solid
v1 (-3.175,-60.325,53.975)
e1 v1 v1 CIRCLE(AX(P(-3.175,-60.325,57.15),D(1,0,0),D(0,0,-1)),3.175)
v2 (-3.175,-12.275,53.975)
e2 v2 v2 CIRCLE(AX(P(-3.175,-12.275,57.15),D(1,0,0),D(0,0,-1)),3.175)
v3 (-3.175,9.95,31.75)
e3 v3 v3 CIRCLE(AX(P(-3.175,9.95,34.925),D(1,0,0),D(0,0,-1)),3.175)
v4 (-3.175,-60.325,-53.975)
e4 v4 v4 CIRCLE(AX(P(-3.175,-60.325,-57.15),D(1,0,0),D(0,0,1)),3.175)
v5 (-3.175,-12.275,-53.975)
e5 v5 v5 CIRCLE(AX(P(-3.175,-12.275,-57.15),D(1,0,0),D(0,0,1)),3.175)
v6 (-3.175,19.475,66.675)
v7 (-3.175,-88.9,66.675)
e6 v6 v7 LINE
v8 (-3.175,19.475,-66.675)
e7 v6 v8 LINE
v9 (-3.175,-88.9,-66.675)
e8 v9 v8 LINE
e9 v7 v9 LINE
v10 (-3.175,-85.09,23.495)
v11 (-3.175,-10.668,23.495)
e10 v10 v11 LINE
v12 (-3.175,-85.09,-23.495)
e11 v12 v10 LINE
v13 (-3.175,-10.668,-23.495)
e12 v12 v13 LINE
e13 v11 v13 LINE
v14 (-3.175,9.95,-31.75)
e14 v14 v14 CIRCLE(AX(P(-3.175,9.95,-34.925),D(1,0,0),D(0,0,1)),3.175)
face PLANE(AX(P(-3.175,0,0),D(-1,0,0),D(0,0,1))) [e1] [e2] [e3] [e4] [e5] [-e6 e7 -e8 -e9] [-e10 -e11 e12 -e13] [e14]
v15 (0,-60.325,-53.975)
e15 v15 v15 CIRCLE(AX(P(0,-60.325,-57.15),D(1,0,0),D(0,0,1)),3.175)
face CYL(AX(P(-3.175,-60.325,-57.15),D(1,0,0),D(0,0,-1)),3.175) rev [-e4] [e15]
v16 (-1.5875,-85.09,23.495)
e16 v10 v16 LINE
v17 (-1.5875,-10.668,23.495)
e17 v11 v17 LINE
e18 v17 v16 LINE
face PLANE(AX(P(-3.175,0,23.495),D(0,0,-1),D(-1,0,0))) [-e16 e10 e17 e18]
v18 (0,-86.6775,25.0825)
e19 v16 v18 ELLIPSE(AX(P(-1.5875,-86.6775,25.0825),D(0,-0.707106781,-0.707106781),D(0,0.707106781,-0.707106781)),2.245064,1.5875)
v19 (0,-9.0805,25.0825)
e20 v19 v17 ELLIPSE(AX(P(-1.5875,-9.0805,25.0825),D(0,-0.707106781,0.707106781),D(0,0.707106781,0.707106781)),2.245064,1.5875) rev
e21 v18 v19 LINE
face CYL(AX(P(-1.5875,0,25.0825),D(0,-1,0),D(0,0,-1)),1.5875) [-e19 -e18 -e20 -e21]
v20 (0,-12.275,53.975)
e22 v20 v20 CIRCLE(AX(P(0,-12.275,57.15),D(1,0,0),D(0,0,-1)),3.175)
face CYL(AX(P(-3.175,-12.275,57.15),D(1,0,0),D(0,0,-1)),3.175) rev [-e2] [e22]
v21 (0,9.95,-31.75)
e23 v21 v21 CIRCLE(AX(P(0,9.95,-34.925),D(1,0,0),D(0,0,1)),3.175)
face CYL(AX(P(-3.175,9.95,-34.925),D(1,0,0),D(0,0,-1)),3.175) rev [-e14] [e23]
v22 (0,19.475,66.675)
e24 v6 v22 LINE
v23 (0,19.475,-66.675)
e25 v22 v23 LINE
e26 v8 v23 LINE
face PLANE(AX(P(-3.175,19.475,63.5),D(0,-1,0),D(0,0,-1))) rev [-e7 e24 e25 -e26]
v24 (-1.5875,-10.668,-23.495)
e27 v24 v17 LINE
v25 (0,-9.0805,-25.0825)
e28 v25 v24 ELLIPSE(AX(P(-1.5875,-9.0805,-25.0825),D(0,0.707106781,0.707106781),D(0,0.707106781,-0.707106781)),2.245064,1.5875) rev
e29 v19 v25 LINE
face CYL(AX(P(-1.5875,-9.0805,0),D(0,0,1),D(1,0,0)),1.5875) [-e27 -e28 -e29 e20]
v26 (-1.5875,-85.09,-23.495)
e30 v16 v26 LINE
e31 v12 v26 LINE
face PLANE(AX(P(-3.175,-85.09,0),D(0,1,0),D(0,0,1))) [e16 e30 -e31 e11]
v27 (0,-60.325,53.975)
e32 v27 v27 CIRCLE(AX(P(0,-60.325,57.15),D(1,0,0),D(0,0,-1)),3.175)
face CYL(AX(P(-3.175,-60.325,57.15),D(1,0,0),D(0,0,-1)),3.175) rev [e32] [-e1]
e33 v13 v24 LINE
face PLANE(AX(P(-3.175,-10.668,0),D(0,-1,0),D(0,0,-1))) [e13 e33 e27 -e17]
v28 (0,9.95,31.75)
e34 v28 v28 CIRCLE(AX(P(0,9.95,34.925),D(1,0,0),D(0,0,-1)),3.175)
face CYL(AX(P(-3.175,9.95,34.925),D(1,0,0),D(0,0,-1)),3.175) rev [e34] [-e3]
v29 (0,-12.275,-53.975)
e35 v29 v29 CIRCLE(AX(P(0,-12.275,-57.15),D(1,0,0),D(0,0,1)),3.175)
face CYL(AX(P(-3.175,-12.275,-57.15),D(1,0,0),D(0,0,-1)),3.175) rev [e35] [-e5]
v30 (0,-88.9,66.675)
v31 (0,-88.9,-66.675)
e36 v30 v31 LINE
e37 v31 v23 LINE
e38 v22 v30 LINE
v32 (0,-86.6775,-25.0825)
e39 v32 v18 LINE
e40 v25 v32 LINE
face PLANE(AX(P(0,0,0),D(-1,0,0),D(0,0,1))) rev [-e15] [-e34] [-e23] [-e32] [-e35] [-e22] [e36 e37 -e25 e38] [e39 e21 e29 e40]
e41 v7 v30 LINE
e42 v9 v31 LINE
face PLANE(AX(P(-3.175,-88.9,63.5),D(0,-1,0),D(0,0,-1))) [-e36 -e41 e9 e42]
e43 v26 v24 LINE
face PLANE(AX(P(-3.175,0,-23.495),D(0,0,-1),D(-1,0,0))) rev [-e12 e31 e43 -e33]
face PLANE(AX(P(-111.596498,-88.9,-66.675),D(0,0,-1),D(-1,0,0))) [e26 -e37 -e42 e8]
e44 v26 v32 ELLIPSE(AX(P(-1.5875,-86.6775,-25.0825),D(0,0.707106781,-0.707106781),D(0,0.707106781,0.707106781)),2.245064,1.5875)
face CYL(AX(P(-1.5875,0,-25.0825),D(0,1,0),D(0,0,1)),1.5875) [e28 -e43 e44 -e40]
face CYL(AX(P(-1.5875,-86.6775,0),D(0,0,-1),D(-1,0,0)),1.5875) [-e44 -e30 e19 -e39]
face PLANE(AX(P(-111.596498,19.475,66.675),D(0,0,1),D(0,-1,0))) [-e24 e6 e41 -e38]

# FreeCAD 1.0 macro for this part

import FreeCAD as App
import Part
import Sketcher
Q = App.Units.Quantity


def edges_at(feature, points):
    """Names of the edges that pass closest to the given points."""
    edges = feature.Shape.Edges
    near = lambda p: min(range(len(edges)), key=lambda i: edges[i].distToShape(Part.Vertex(*p))[0])
    return sorted({f"Edge{near(p) + 1}" for p in points})


def add_polygon(sketch, points):
    """Adds a closed chain of lines whose ends are joined by coincident constraints."""
    first, n = sketch.GeometryCount, len(points)
    for a, b in zip(points, points[1:] + points[:1]):
        sketch.addGeometry(Part.LineSegment(App.Vector(*a, 0), App.Vector(*b, 0)), False)
    for i in range(n):
        sketch.addConstraint(Sketcher.Constraint("Coincident", first + i, 2, first + (i + 1) % n, 1))

doc = App.newDocument("Part")
body = doc.addObject("PartDesign::Body", "Body")

sketch1 = doc.addObject("Sketcher::SketchObject", "Sketch")
body.addObject(sketch1)
sketch1.AttachmentSupport = (doc.YZ_Plane, [""])
sketch1.MapMode = "FlatFace"
add_polygon(sketch1, [(89, 64), (-89, 64), (-89, -64), (89, -64)])
sketch1.addConstraint(Sketcher.Constraint("Horizontal", 0))
sketch1.addConstraint(Sketcher.Constraint("Vertical", 1))
sketch1.addConstraint(Sketcher.Constraint("Horizontal", 2))
sketch1.addConstraint(Sketcher.Constraint("Vertical", 3))
sketch1.addConstraint(Sketcher.Constraint("Symmetric", 0, 2, 2, 2, -1, 1))
sketch1.addConstraint(Sketcher.Constraint("DistanceX", 0, 2, 0, 1, Q("7 in")))
sketch1.addConstraint(Sketcher.Constraint("DistanceY", 1, 2, 1, 1, Q("5 in")))
pad1 = doc.addObject("PartDesign::Pad", "Pad")
body.addObject(pad1)
pad1.Profile = sketch1
pad1.Length = Q("0.125 in")
pad1.Reversed = True

sketch2 = doc.addObject("Sketcher::SketchObject", "Sketch001")
body.addObject(sketch2)
sketch2.AttachmentSupport = (doc.YZ_Plane, [""])
sketch2.MapMode = "FlatFace"
add_polygon(sketch2, [(89, 64), (19, 64), (19, -64), (89, -64)])
sketch2.addConstraint(Sketcher.Constraint("Horizontal", 0))
sketch2.addConstraint(Sketcher.Constraint("Vertical", 1))
sketch2.addConstraint(Sketcher.Constraint("Horizontal", 2))
sketch2.addConstraint(Sketcher.Constraint("Vertical", 3))
sketch2.addConstraint(Sketcher.Constraint("DistanceY", 1, 2, 1, 1, Q("5 in")))
sketch2.addConstraint(Sketcher.Constraint("DistanceY", -1, 1, 0, 2, Q("2.5 in")))
sketch2.addConstraint(Sketcher.Constraint("DistanceX", -1, 1, 2, 2, Q("3.5 in")))
sketch2.addConstraint(Sketcher.Constraint("DistanceX", 0, 2, 0, 1, Q("69.425 mm")))
pocket1 = doc.addObject("PartDesign::Pocket", "Pocket")
body.addObject(pocket1)
pocket1.Profile = sketch2
pocket1.Type = "ThroughAll"

sketch3 = doc.addObject("Sketcher::SketchObject", "Sketch002")
body.addObject(sketch3)
sketch3.AttachmentSupport = (doc.YZ_Plane, [""])
sketch3.MapMode = "FlatFace"
add_polygon(sketch3, [(19.5, 66.7), (-88.9, 66.7), (-88.9, 63.5), (19.5, 63.5)])
add_polygon(sketch3, [(19.5, -63.5), (-88.9, -63.5), (-88.9, -66.7), (19.5, -66.7)])
sketch3.addConstraint(Sketcher.Constraint("Horizontal", 0))
sketch3.addConstraint(Sketcher.Constraint("Vertical", 1))
sketch3.addConstraint(Sketcher.Constraint("Horizontal", 2))
sketch3.addConstraint(Sketcher.Constraint("Vertical", 3))
sketch3.addConstraint(Sketcher.Constraint("Horizontal", 4))
sketch3.addConstraint(Sketcher.Constraint("Vertical", 5))
sketch3.addConstraint(Sketcher.Constraint("Horizontal", 6))
sketch3.addConstraint(Sketcher.Constraint("Vertical", 7))
sketch3.addConstraint(Sketcher.Constraint("Symmetric", 1, 2, 4, 2, -1))
sketch3.addConstraint(Sketcher.Constraint("Symmetric", 3, 2, 6, 2, -1))
sketch3.addConstraint(Sketcher.Constraint("DistanceY", 4, 2, 1, 2, Q("5 in")))
sketch3.addConstraint(Sketcher.Constraint("DistanceX", 0, 2, -1, 1, Q("3.5 in")))
sketch3.addConstraint(Sketcher.Constraint("DistanceY", 1, 2, 1, 1, Q("0.125 in")))
sketch3.addConstraint(Sketcher.Constraint("DistanceX", 0, 2, 0, 1, Q("108.375 mm")))
pad2 = doc.addObject("PartDesign::Pad", "Pad001")
body.addObject(pad2)
pad2.Profile = sketch3
pad2.Length = Q("0.125 in")
pad2.Reversed = True

sketch4 = doc.addObject("Sketcher::SketchObject", "Sketch003")
body.addObject(sketch4)
sketch4.AttachmentSupport = (doc.YZ_Plane, [""])
sketch4.MapMode = "FlatFace"
add_polygon(sketch4, [(-11, 23), (-85, 23), (-85, -23), (-11, -23)])
sketch4.addConstraint(Sketcher.Constraint("Horizontal", 0))
sketch4.addConstraint(Sketcher.Constraint("Vertical", 1))
sketch4.addConstraint(Sketcher.Constraint("Horizontal", 2))
sketch4.addConstraint(Sketcher.Constraint("Vertical", 3))
sketch4.addConstraint(Sketcher.Constraint("DistanceX", 0, 2, 0, 1, Q("2.93 in")))
sketch4.addConstraint(Sketcher.Constraint("DistanceY", 1, 2, 1, 1, Q("1.85 in")))
sketch4.addConstraint(Sketcher.Constraint("DistanceX", 0, 2, -1, 1, Q("3.35 in")))
sketch4.addConstraint(Sketcher.Constraint("DistanceY", -1, 1, 0, 2, Q("0.925 in")))
pocket2 = doc.addObject("PartDesign::Pocket", "Pocket001")
body.addObject(pocket2)
pocket2.Profile = sketch4
pocket2.Type = "ThroughAll"
doc.recompute()

fillet = doc.addObject("PartDesign::Fillet", "Fillet")
body.addObject(fillet)
fillet.Base = (pocket2, edges_at(pocket2, [
    (0, -10.668, 0),
    (0, -85.09, 0),
    (0, -47.879, 23.495),
    (0, -47.879, -23.495),
]))
fillet.Radius = Q("0.0625 in")

sketch5 = doc.addObject("Sketcher::SketchObject", "Sketch004")
body.addObject(sketch5)
sketch5.AttachmentSupport = (doc.YZ_Plane, [""])
sketch5.MapMode = "FlatFace"
sketch5.addGeometry(Part.Circle(App.Vector(-60.3, 57.1, 0), App.Vector(0, 0, 1), 3.2), False)
sketch5.addGeometry(Part.Circle(App.Vector(-12.3, 57.1, 0), App.Vector(0, 0, 1), 3.2), False)
sketch5.addGeometry(Part.Circle(App.Vector(9.9, 34.9, 0), App.Vector(0, 0, 1), 3.2), False)
sketch5.addGeometry(Part.Circle(App.Vector(9.9, -34.9, 0), App.Vector(0, 0, 1), 3.2), False)
sketch5.addGeometry(Part.Circle(App.Vector(-12.3, -57.1, 0), App.Vector(0, 0, 1), 3.2), False)
sketch5.addGeometry(Part.Circle(App.Vector(-60.3, -57.1, 0), App.Vector(0, 0, 1), 3.2), False)
sketch5.addConstraint(Sketcher.Constraint("Equal", 0, 1))
sketch5.addConstraint(Sketcher.Constraint("Equal", 1, 2))
sketch5.addConstraint(Sketcher.Constraint("Equal", 2, 3))
sketch5.addConstraint(Sketcher.Constraint("Equal", 3, 4))
sketch5.addConstraint(Sketcher.Constraint("Equal", 4, 5))
sketch5.addConstraint(Sketcher.Constraint("Symmetric", 2, 3, 3, 3, -1))
sketch5.addConstraint(Sketcher.Constraint("Symmetric", 1, 3, 4, 3, -1))
sketch5.addConstraint(Sketcher.Constraint("Symmetric", 0, 3, 5, 3, -1))
sketch5.addConstraint(Sketcher.Constraint("Horizontal", 0, 3, 1, 3))
sketch5.addConstraint(Sketcher.Constraint("Diameter", 0, Q("0.25 in")))
sketch5.addConstraint(Sketcher.Constraint("DistanceY", 4, 3, 1, 3, Q("4.5 in")))
sketch5.addConstraint(Sketcher.Constraint("DistanceY", 3, 3, 2, 3, Q("2.75 in")))
sketch5.addConstraint(Sketcher.Constraint("DistanceX", 0, 3, -1, 1, Q("2.375 in")))
sketch5.addConstraint(Sketcher.Constraint("DistanceX", 1, 3, 2, 3, Q("0.875 in")))
sketch5.addConstraint(Sketcher.Constraint("DistanceX", 1, 3, -1, 1, Q("12.275 mm")))
pocket3 = doc.addObject("PartDesign::Pocket", "Pocket002")
body.addObject(pocket3)
pocket3.Profile = sketch5
pocket3.Type = "ThroughAll"

doc.recompute()
